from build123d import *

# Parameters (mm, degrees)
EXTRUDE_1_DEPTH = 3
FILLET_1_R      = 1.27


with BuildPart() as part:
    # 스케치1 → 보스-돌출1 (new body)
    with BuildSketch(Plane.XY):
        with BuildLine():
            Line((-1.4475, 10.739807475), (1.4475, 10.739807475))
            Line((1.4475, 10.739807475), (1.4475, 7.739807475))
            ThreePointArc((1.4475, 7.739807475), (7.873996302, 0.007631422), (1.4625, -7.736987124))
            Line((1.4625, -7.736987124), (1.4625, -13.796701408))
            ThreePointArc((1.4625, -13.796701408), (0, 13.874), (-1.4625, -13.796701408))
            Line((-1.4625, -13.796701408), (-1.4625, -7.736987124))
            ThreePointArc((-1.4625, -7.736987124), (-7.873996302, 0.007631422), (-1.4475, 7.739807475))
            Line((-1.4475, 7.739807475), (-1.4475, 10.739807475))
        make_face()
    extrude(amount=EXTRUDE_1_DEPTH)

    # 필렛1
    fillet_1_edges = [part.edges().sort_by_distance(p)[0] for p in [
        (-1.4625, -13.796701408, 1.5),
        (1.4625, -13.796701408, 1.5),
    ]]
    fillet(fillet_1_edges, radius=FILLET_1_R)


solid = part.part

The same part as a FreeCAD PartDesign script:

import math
import FreeCAD as App
import Part
import Sketcher
Q = App.Units.Quantity


def edges_at(feature, points):
    """Names of the edges that pass closest to the given points."""
    edges = feature.Shape.Edges
    near = lambda p: min(range(len(edges)), key=lambda i: edges[i].distToShape(Part.Vertex(*p))[0])
    return sorted({f"Edge{near(p) + 1}" for p in points})

doc = App.newDocument("Part")
params = doc.addObject("Spreadsheet::Sheet", "Params")
for row, (alias, value) in enumerate([
    ("sketch1_radius", "0.31 in"),
    ("pad1_length", "3 mm"),
    ("fillet_radius", "0.05 in"),
], start=1):
    params.set(f"A{row}", alias)
    params.set(f"B{row}", "=" + value)
    params.setAlias(f"B{row}", alias)

body = doc.addObject("PartDesign::Body", "Body")

# Sketch on XY plane
sketch1 = body.newObject("Sketcher::SketchObject", "Sketch")
sketch1.AttachmentSupport = (doc.getObject("XY_Plane"), [""])
sketch1.MapMode = "FlatFace"
sketch1.addGeometry([
    Part.LineSegment(App.Vector(-1.4, 10.7, 0), App.Vector(1.4, 10.7, 0)),  # 0
    Part.LineSegment(App.Vector(1.4, 10.7, 0), App.Vector(1.4, 7.7, 0)),  # 1
    Part.ArcOfCircle(Part.Circle(App.Vector(0, 0, 0), App.Vector(0, 0, 1), 7.9), math.radians(-79), math.radians(79)),  # 2
    Part.LineSegment(App.Vector(1.5, -7.7, 0), App.Vector(1.5, -13.8, 0)),  # 3
    Part.ArcOfCircle(Part.Circle(App.Vector(0, 0, 0), App.Vector(0, 0, 1), 13.9), math.radians(-84), math.radians(264)),  # 4
    Part.LineSegment(App.Vector(-1.5, -13.8, 0), App.Vector(-1.5, -7.7, 0)),  # 5
    Part.ArcOfCircle(Part.Circle(App.Vector(0, 0, 0), App.Vector(0, 0, 1), 7.9), math.radians(101), math.radians(259)),  # 6
    Part.LineSegment(App.Vector(-1.4, 7.7, 0), App.Vector(-1.4, 10.7, 0)),  # 7
], False)
sketch1.addConstraint([
    Sketcher.Constraint("Coincident", 0, 2, 1, 1),
    Sketcher.Constraint("Coincident", 1, 2, 2, 2),
    Sketcher.Constraint("Coincident", 2, 1, 3, 1),
    Sketcher.Constraint("Coincident", 3, 2, 4, 1),
    Sketcher.Constraint("Coincident", 4, 2, 5, 1),
    Sketcher.Constraint("Coincident", 5, 2, 6, 2),
    Sketcher.Constraint("Coincident", 6, 1, 7, 1),
    Sketcher.Constraint("Coincident", 7, 2, 0, 1),
    Sketcher.Constraint("Horizontal", 0),
    Sketcher.Constraint("Vertical", 1),
    Sketcher.Constraint("Vertical", 3),
    Sketcher.Constraint("Vertical", 5),
    Sketcher.Constraint("Vertical", 7),
    Sketcher.Constraint("Coincident", 2, 3, -1, 1),
    Sketcher.Constraint("Coincident", 4, 3, -1, 1),
    Sketcher.Constraint("Coincident", 6, 3, -1, 1),
    Sketcher.Constraint("Equal", 2, 6),
    Sketcher.Constraint("Horizontal", 3, 2, 4, 2),
    Sketcher.Constraint("Horizontal", 1, 2, 6, 1),
    Sketcher.Constraint("Radius", 2, Q("0.31 in")),
    Sketcher.Constraint("Radius", 4, Q("13.874 mm")),
    Sketcher.Constraint("DistanceX", 0, 1, 0, 2, Q("2.895 mm")),
    Sketcher.Constraint("DistanceY", 1, 2, 1, 1, Q("3 mm")),
    Sketcher.Constraint("DistanceX", -1, 1, 2, 1, Q("1.4625 mm")),
])
sketch1.setExpression("Constraints[19]", "Params.sketch1_radius")
pad1 = body.newObject("PartDesign::Pad", "Pad")
pad1.Profile = sketch1
pad1.setExpression("Length", "Params.pad1_length")
doc.recompute()

fillet = body.newObject("PartDesign::Fillet", "Fillet")
fillet.Base = (pad1, edges_at(pad1, [(-1.462, -13.797, 1.5), (1.462, -13.797, 1.5)]))
fillet.setExpression("Radius", "Params.fillet_radius")

doc.recompute()
